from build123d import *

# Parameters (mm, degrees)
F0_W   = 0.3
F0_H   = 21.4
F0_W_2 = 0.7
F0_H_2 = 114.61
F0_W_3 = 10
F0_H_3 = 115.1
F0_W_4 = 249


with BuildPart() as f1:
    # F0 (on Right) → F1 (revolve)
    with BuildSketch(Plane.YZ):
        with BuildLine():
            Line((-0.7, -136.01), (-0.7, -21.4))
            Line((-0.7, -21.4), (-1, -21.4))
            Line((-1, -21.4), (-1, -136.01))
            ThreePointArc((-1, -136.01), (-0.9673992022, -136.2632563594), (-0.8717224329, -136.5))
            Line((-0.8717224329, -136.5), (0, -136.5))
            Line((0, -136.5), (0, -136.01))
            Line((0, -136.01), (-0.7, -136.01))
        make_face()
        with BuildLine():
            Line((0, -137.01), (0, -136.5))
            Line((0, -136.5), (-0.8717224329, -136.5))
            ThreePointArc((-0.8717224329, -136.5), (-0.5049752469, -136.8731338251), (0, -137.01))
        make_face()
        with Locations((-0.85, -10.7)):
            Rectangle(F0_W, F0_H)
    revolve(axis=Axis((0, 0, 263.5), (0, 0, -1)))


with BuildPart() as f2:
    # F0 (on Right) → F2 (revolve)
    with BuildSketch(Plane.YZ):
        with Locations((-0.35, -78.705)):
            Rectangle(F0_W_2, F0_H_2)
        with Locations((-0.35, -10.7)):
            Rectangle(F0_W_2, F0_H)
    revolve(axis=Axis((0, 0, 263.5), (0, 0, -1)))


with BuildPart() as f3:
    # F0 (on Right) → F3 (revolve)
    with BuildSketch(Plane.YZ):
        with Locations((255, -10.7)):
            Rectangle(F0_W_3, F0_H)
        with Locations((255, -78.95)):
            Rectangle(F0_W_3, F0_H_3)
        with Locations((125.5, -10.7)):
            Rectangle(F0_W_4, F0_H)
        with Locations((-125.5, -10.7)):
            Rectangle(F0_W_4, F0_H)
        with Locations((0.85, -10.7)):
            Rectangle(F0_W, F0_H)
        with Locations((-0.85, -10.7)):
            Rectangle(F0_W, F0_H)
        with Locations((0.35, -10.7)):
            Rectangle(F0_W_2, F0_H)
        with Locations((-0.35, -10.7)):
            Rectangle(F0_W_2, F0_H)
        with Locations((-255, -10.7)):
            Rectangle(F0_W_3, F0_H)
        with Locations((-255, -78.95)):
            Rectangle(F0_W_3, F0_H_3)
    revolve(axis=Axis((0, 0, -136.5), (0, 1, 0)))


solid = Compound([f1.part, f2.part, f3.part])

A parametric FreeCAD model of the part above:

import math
import FreeCAD as App
import Part
import Sketcher

V = App.Vector
Q = App.Units.Quantity

doc = App.newDocument("Part")
body = doc.addObject("PartDesign::Body", "Body")

sketch1 = doc.addObject("Sketcher::SketchObject", "Sketch")
body.addObject(sketch1)
sketch1.AttachmentSupport = (doc.YZ_Plane, [""])
sketch1.MapMode = "FlatFace"
sketch1.addGeometry(Part.LineSegment(V(-0.7, -136.01, 0), V(-0.7, 0, 0)), False)
sketch1.addGeometry(Part.LineSegment(V(-0.7, 0, 0), V(-1, 0, 0)), False)
sketch1.addGeometry(Part.LineSegment(V(-1, 0, 0), V(-1, -136.01, 0)), False)
sketch1.addGeometry(Part.ArcOfCircle(Part.Circle(V(0, -136.01, 0), V(0, 0, 1), 1), math.radians(180), math.radians(209.340582)), False)
sketch1.addGeometry(Part.ArcOfCircle(Part.Circle(V(0, -136.01, 0), V(0, 0, 1), 1), math.radians(-150.659418), math.radians(-90)), False)
sketch1.addGeometry(Part.LineSegment(V(0, -137.01, 0), V(0, -136.01, 0)), False)
sketch1.addGeometry(Part.LineSegment(V(0, -136.01, 0), V(-0.7, -136.01, 0)), False)
sketch1.addConstraint(Sketcher.Constraint("Coincident", 0, 2, 1, 1))
sketch1.addConstraint(Sketcher.Constraint("Coincident", 1, 2, 2, 1))
sketch1.addConstraint(Sketcher.Constraint("Tangent", 2, 2, 3, 1))
sketch1.addConstraint(Sketcher.Constraint("Tangent", 3, 2, 4, 1))
sketch1.addConstraint(Sketcher.Constraint("Coincident", 4, 2, 5, 1))
sketch1.addConstraint(Sketcher.Constraint("Coincident", 5, 2, 6, 1))
sketch1.addConstraint(Sketcher.Constraint("Coincident", 6, 2, 0, 1))
sketch1.addConstraint(Sketcher.Constraint("Vertical", 0))
sketch1.addConstraint(Sketcher.Constraint("Horizontal", 1))
sketch1.addConstraint(Sketcher.Constraint("Vertical", 2))
sketch1.addConstraint(Sketcher.Constraint("Vertical", 5))
sketch1.addConstraint(Sketcher.Constraint("Horizontal", 6))
sketch1.addConstraint(Sketcher.Constraint("Coincident", 5, 2, 3, 3))
sketch1.addConstraint(Sketcher.Constraint("Equal", 3, 4))
sketch1.addConstraint(Sketcher.Constraint("PointOnObject", 3, 3, -2))
sketch1.addConstraint(Sketcher.Constraint("PointOnObject", 0, 2, -1))
sketch1.addConstraint(Sketcher.Constraint("Radius", 3, Q("1 mm")))
sketch1.addConstraint(Sketcher.Constraint("DistanceX", 1, 2, 1, 1, Q("0.3 mm")))
sketch1.addConstraint(Sketcher.Constraint("DistanceY", 0, 1, 0, 2, Q("136.01 mm")))
sketch1.addConstraint(Sketcher.Constraint("DistanceY", 3, 2, -1, 1, Q("136.5 mm")))
revolution = doc.addObject("PartDesign::Revolution", "Revolution")
body.addObject(revolution)
revolution.Profile = sketch1
revolution.ReferenceAxis = (sketch1, ["V_Axis"])
revolution.Angle = 360
body2 = doc.addObject("PartDesign::Body", "Body001")

sketch2 = doc.addObject("Sketcher::SketchObject", "Sketch001")
body2.addObject(sketch2)
sketch2.AttachmentSupport = (doc.getObject("YZ_Plane001"), [""])
sketch2.MapMode = "FlatFace"
sketch2.addGeometry(Part.LineSegment(V(-0.7, -136.01, 0), V(0, -136.01, 0)), False)
sketch2.addGeometry(Part.LineSegment(V(0, -136.01, 0), V(0, 0, 0)), False)
sketch2.addGeometry(Part.LineSegment(V(0, 0, 0), V(-0.7, 0, 0)), False)
sketch2.addGeometry(Part.LineSegment(V(-0.7, 0, 0), V(-0.7, -136.01, 0)), False)
sketch2.addConstraint(Sketcher.Constraint("Coincident", 0, 2, 1, 1))
sketch2.addConstraint(Sketcher.Constraint("Coincident", 1, 2, 2, 1))
sketch2.addConstraint(Sketcher.Constraint("Coincident", 2, 2, 3, 1))
sketch2.addConstraint(Sketcher.Constraint("Coincident", 3, 2, 0, 1))
sketch2.addConstraint(Sketcher.Constraint("Horizontal", 0))
sketch2.addConstraint(Sketcher.Constraint("Vertical", 1))
sketch2.addConstraint(Sketcher.Constraint("Horizontal", 2))
sketch2.addConstraint(Sketcher.Constraint("Vertical", 3))
sketch2.addConstraint(Sketcher.Constraint("Coincident", 1, 2, -1, 1))
sketch2.addConstraint(Sketcher.Constraint("DistanceX", 0, 1, 0, 2, Q("0.7 mm")))
sketch2.addConstraint(Sketcher.Constraint("DistanceY", 1, 1, 1, 2, Q("136.01 mm")))
revolution2 = doc.addObject("PartDesign::Revolution", "Revolution001")
body2.addObject(revolution2)
revolution2.Profile = sketch2
revolution2.ReferenceAxis = (sketch2, ["V_Axis"])
revolution2.Angle = 360
body3 = doc.addObject("PartDesign::Body", "Body002")

sketch3 = doc.addObject("Sketcher::SketchObject", "Sketch002")
body3.addObject(sketch3)
sketch3.AttachmentSupport = (doc.getObject("YZ_Plane002"), [""])
sketch3.MapMode = "FlatFace"
sketch3.addGeometry(Part.LineSegment(V(250, -21.4, 0), V(250, -136.5, 0)), False)
sketch3.addGeometry(Part.LineSegment(V(250, -136.5, 0), V(260, -136.5, 0)), False)
sketch3.addGeometry(Part.LineSegment(V(260, -136.5, 0), V(260, 0, 0)), False)
sketch3.addGeometry(Part.LineSegment(V(260, 0, 0), V(-260, 0, 0)), False)
sketch3.addGeometry(Part.LineSegment(V(-260, 0, 0), V(-260, -136.5, 0)), False)
sketch3.addGeometry(Part.LineSegment(V(-260, -136.5, 0), V(-250, -136.5, 0)), False)
sketch3.addGeometry(Part.LineSegment(V(-250, -136.5, 0), V(-250, -21.4, 0)), False)
sketch3.addGeometry(Part.LineSegment(V(-250, -21.4, 0), V(250, -21.4, 0)), False)
sketch3.addGeometry(Part.LineSegment(V(-260, -136.5, 0), V(260, -136.5, 0)), True)
sketch3.addConstraint(Sketcher.Constraint("Coincident", 0, 2, 1, 1))
sketch3.addConstraint(Sketcher.Constraint("Coincident", 1, 2, 2, 1))
sketch3.addConstraint(Sketcher.Constraint("Coincident", 2, 2, 3, 1))
sketch3.addConstraint(Sketcher.Constraint("Coincident", 3, 2, 4, 1))
sketch3.addConstraint(Sketcher.Constraint("Coincident", 4, 2, 5, 1))
sketch3.addConstraint(Sketcher.Constraint("Coincident", 5, 2, 6, 1))
sketch3.addConstraint(Sketcher.Constraint("Coincident", 6, 2, 7, 1))
sketch3.addConstraint(Sketcher.Constraint("Coincident", 7, 2, 0, 1))
sketch3.addConstraint(Sketcher.Constraint("Vertical", 0))
sketch3.addConstraint(Sketcher.Constraint("Horizontal", 1))
sketch3.addConstraint(Sketcher.Constraint("Vertical", 2))
sketch3.addConstraint(Sketcher.Constraint("Horizontal", 3))
sketch3.addConstraint(Sketcher.Constraint("Vertical", 4))
sketch3.addConstraint(Sketcher.Constraint("Horizontal", 5))
sketch3.addConstraint(Sketcher.Constraint("Vertical", 6))
sketch3.addConstraint(Sketcher.Constraint("Horizontal", 7))
sketch3.addConstraint(Sketcher.Constraint("Horizontal", 8))
sketch3.addConstraint(Sketcher.Constraint("Coincident", 8, 1, 4, 2))
sketch3.addConstraint(Sketcher.Constraint("Coincident", 8, 2, 1, 2))
sketch3.addConstraint(Sketcher.Constraint("Symmetric", 2, 2, 3, 2, -1, 1))
sketch3.addConstraint(Sketcher.Constraint("Equal", 1, 5))
sketch3.addConstraint(Sketcher.Constraint("DistanceX", 1, 1, 1, 2, Q("10 mm")))
sketch3.addConstraint(Sketcher.Constraint("DistanceX", 3, 2, 3, 1, Q("520 mm")))
sketch3.addConstraint(Sketcher.Constraint("DistanceY", 0, 2, 0, 1, Q("115.1 mm")))
sketch3.addConstraint(Sketcher.Constraint("DistanceY", 2, 1, 2, 2, Q("136.5 mm")))
revolution3 = doc.addObject("PartDesign::Revolution", "Revolution002")
body3.addObject(revolution3)
revolution3.Profile = sketch3
revolution3.ReferenceAxis = (sketch3, ["Axis0"])
revolution3.Angle = 360

doc.recompute()
